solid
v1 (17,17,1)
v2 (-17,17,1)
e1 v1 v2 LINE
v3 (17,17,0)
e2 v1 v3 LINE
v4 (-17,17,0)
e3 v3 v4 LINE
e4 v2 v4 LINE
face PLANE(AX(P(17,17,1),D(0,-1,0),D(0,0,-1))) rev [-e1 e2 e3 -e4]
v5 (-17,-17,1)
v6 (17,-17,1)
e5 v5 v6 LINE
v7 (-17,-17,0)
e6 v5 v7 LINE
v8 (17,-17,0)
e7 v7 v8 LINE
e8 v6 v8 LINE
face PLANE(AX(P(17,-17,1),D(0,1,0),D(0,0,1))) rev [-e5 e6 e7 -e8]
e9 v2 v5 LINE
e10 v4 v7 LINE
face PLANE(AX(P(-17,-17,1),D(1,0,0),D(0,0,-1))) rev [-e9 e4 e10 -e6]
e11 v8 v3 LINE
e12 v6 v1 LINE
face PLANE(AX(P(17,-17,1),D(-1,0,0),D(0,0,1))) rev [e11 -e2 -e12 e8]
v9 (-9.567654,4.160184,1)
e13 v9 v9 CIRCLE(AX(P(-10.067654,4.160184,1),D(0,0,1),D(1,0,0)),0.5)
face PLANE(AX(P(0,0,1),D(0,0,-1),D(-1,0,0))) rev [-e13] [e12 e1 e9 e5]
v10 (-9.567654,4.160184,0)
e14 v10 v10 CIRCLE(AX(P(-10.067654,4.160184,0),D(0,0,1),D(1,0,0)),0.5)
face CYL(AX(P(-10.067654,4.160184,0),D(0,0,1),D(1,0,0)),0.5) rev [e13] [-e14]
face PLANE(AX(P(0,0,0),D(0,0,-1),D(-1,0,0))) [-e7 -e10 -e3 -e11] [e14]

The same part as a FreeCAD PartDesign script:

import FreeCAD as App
import Part
import Sketcher

V = App.Vector
Q = App.Units.Quantity


def add_polygon(sketch, points):
    """Adds a closed chain of lines whose ends are joined by coincident constraints."""
    first, n = sketch.GeometryCount, len(points)
    for a, b in zip(points, points[1:] + points[:1]):
        sketch.addGeometry(Part.LineSegment(App.Vector(*a, 0), App.Vector(*b, 0)), False)
    for i in range(n):
        sketch.addConstraint(Sketcher.Constraint("Coincident", first + i, 2, first + (i + 1) % n, 1))

doc = App.newDocument("Part")
body = doc.addObject("PartDesign::Body", "Body")

# Sketch on XY plane
sketch1 = doc.addObject("Sketcher::SketchObject", "Sketch")
body.addObject(sketch1)
sketch1.AttachmentSupport = (doc.XY_Plane, [""])
sketch1.MapMode = "FlatFace"
add_polygon(sketch1, [(-17, -17), (17, -17), (17, 17), (-17, 17)])  # lines 0-3
sketch1.addConstraint(Sketcher.Constraint("Horizontal", 0))
sketch1.addConstraint(Sketcher.Constraint("Vertical", 1))
sketch1.addConstraint(Sketcher.Constraint("Horizontal", 2))
sketch1.addConstraint(Sketcher.Constraint("Vertical", 3))
sketch1.addConstraint(Sketcher.Constraint("Symmetric", 0, 2, 2, 2, -1, 1))
sketch1.addConstraint(Sketcher.Constraint("Equal", 2, 1))
sketch1.addConstraint(Sketcher.Constraint("DistanceX", 0, 1, 0, 2, Q("34 mm")))
pad1 = doc.addObject("PartDesign::Pad", "Pad")
body.addObject(pad1)
pad1.Profile = sketch1
pad1.Length = 1

# Sketch on XY plane
sketch2 = doc.addObject("Sketcher::SketchObject", "Sketch001")
body.addObject(sketch2)
sketch2.AttachmentSupport = (doc.XY_Plane, [""])
sketch2.MapMode = "FlatFace"
sketch2.AttachmentOffset = App.Placement(V(0, 0, 1), App.Rotation())
sketch2.addGeometry(Part.Circle(V(-10.1, 4.2, 0), V(0, 0, 1), 0.5), False)
sketch2.addConstraint(Sketcher.Constraint("Diameter", 0, Q("1 mm")))
sketch2.addConstraint(Sketcher.Constraint("DistanceX", 0, 3, -1, 1, Q("10.067654 mm")))
sketch2.addConstraint(Sketcher.Constraint("DistanceY", -1, 1, 0, 3, Q("4.160184 mm")))
pocket1 = doc.addObject("PartDesign::Pocket", "Pocket")
body.addObject(pocket1)
pocket1.Profile = sketch2
pocket1.Type = "ThroughAll"

doc.recompute()
